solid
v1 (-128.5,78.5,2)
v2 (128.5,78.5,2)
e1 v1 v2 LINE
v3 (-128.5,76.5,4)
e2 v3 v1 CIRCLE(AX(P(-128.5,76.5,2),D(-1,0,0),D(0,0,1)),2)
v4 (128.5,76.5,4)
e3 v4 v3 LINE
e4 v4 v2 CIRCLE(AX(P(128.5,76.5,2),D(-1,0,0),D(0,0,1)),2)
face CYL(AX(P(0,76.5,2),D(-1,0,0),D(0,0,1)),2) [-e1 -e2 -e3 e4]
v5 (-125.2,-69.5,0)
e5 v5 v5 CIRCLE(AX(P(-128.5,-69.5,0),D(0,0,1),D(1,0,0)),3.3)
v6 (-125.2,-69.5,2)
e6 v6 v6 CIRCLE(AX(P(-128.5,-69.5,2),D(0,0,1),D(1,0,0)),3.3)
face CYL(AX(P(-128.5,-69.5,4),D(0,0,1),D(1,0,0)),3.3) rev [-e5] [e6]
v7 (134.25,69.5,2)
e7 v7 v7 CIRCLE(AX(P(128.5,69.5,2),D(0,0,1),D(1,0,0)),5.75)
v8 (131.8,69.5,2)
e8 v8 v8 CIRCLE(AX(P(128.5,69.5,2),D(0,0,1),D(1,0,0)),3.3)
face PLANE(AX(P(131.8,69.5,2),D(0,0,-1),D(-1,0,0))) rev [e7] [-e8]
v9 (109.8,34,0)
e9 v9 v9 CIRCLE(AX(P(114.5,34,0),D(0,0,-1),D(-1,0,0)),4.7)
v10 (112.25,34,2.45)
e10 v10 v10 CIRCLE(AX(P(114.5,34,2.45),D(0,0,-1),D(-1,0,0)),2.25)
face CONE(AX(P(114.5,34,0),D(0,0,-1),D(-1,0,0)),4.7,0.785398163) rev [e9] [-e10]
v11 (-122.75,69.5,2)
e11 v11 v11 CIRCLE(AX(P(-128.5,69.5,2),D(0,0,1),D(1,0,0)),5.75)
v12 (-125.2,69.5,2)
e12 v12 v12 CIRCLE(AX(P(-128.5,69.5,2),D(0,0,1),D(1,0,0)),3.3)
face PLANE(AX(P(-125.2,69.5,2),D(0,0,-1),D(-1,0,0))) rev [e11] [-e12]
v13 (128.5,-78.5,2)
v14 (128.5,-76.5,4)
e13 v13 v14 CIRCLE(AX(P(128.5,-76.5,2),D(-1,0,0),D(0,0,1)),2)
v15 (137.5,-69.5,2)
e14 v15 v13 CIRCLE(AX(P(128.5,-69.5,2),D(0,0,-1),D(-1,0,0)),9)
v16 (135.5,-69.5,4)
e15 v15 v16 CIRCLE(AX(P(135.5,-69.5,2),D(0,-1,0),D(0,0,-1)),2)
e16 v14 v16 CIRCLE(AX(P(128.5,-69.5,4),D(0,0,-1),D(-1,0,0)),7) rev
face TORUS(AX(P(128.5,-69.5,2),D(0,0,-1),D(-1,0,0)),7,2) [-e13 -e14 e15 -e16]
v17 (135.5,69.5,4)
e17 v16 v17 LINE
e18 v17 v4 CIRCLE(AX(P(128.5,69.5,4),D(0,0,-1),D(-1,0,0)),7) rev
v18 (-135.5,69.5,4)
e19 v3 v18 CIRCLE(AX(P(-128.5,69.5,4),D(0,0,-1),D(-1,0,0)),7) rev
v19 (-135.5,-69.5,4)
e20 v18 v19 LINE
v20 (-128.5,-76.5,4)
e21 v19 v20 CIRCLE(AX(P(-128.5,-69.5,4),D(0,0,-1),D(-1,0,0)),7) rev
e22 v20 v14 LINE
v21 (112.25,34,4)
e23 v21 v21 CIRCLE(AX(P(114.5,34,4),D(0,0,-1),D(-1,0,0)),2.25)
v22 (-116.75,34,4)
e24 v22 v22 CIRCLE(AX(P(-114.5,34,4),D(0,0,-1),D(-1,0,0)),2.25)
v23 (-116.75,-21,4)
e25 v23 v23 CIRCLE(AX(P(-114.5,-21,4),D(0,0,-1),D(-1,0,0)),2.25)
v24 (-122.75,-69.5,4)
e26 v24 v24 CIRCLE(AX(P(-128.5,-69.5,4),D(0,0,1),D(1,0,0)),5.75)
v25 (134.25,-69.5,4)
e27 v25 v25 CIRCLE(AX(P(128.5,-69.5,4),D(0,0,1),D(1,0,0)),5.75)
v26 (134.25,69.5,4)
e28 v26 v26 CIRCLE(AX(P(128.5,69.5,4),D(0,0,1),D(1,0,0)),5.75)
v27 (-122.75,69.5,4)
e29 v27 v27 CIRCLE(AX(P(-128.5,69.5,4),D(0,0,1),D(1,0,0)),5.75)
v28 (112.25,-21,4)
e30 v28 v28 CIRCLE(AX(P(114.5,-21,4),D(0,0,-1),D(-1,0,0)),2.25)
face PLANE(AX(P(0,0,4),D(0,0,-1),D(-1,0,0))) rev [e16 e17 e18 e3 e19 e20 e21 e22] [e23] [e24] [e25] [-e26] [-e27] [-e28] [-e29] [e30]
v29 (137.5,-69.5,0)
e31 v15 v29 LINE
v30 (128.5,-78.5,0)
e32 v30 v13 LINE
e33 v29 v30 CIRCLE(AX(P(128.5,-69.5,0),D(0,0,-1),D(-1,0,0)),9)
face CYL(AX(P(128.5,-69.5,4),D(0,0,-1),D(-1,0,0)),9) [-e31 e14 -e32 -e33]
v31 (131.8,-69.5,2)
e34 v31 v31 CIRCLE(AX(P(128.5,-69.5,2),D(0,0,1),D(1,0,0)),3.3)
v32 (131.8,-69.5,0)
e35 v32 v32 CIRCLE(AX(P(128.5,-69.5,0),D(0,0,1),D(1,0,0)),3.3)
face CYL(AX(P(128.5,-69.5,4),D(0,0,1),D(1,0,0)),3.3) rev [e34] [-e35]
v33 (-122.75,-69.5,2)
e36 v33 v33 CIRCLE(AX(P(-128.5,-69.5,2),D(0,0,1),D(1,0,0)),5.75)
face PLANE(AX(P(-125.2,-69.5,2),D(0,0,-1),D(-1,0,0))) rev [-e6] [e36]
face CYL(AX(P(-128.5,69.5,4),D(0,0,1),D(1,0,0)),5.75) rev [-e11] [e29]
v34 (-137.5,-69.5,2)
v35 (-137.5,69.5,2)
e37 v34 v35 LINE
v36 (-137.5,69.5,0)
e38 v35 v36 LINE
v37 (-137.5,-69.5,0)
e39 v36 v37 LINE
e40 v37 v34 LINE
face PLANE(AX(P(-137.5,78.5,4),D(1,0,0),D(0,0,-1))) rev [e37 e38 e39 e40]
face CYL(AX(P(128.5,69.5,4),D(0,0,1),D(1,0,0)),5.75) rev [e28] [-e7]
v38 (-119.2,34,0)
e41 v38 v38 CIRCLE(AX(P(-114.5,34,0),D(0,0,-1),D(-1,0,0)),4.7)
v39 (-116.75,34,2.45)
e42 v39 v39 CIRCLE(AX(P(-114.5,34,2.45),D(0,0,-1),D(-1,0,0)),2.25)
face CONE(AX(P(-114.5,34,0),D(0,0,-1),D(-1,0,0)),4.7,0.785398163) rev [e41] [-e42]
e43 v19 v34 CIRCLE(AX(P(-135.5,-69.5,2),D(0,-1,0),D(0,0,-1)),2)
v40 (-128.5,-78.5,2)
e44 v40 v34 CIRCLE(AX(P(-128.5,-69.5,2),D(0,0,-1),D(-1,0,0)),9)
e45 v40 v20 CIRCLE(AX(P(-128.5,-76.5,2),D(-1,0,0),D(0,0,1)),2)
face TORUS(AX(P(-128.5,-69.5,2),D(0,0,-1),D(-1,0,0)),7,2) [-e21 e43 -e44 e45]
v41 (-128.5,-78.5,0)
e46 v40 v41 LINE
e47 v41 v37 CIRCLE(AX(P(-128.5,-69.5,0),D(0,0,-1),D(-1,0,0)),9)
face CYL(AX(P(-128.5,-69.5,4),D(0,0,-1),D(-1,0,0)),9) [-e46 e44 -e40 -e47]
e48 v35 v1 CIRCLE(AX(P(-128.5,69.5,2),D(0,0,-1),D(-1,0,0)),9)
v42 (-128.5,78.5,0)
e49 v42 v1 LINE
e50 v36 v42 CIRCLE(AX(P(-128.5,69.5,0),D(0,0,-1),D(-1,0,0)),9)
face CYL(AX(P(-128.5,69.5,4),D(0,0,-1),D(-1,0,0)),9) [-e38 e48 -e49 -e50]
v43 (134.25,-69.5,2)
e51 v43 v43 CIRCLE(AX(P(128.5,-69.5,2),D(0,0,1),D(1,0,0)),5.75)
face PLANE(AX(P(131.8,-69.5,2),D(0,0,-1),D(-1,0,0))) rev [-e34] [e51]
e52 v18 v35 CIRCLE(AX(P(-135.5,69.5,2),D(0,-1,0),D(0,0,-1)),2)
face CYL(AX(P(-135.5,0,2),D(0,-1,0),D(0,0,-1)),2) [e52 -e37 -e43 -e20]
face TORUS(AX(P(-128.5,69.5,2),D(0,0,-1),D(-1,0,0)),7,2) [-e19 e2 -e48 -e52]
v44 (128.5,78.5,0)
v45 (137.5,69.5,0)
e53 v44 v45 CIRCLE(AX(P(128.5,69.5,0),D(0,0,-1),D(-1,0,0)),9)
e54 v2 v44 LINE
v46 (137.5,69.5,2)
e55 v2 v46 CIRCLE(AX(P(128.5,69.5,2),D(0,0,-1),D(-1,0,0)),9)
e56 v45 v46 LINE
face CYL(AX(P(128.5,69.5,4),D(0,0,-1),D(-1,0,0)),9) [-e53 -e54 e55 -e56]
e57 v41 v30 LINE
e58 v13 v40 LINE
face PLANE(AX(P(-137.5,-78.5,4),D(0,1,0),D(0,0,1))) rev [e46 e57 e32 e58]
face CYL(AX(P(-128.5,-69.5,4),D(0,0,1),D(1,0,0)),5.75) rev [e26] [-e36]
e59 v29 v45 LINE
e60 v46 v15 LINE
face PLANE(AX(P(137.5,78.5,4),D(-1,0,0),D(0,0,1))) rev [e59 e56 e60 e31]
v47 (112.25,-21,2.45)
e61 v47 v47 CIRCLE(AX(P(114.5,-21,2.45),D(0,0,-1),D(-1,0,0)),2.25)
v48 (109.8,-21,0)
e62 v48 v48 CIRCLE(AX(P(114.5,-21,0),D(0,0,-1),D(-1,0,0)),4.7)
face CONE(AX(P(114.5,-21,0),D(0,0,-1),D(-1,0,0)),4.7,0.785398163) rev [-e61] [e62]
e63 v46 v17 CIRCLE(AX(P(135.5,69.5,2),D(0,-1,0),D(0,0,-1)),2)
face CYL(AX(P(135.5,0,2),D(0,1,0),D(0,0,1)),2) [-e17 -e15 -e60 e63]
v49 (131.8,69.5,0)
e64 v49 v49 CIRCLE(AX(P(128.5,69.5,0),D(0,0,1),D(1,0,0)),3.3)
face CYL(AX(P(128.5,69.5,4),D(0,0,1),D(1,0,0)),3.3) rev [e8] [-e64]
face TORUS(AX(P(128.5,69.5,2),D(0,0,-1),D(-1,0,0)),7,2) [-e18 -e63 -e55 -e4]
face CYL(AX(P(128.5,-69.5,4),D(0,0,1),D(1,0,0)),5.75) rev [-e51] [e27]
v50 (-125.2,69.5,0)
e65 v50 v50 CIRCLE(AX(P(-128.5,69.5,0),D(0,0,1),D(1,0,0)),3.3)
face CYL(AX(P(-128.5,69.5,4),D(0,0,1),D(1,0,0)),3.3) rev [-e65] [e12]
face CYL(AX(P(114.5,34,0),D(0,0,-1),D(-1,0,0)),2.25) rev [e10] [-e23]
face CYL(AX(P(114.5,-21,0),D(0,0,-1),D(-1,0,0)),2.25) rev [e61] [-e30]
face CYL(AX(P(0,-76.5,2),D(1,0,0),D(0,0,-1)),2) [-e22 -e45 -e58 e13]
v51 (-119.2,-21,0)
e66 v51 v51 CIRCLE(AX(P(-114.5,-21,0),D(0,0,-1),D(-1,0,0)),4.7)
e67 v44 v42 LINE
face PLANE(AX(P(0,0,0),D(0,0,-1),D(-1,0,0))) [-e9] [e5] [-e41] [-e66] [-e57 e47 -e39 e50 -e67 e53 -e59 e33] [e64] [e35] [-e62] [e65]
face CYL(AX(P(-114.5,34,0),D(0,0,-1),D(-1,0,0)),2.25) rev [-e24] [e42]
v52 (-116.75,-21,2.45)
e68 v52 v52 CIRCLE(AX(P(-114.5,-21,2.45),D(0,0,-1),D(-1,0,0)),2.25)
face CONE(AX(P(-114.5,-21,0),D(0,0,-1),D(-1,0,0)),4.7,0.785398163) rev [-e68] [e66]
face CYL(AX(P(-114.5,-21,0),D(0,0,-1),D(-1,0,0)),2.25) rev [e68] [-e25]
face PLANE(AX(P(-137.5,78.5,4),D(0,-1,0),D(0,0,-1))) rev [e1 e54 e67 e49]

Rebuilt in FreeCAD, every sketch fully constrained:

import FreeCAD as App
import Part
import Sketcher
Q = App.Units.Quantity


def edges_at(feature, points):
    """Names of the edges that pass closest to the given points."""
    edges = feature.Shape.Edges
    near = lambda p: min(range(len(edges)), key=lambda i: edges[i].distToShape(Part.Vertex(*p))[0])
    return sorted({f"Edge{near(p) + 1}" for p in points})

doc = App.newDocument("Part")
body = doc.addObject("PartDesign::Body", "Body")

sketch1 = body.newObject("Sketcher::SketchObject", "Sketch")
sketch1.AttachmentSupport = (doc.getObject("XY_Plane"), [""])
sketch1.MapMode = "FlatFace"
sketch1.addGeometry([
    Part.LineSegment(App.Vector(-137.5, 78.5, 0), App.Vector(-137.5, -78.5, 0)),
    Part.LineSegment(App.Vector(-137.5, -78.5, 0), App.Vector(137.5, -78.5, 0)),
    Part.LineSegment(App.Vector(137.5, -78.5, 0), App.Vector(137.5, 78.5, 0)),
    Part.LineSegment(App.Vector(137.5, 78.5, 0), App.Vector(-137.5, 78.5, 0)),
], False)
sketch1.addConstraint([
    Sketcher.Constraint("Coincident", 0, 2, 1, 1),
    Sketcher.Constraint("Coincident", 1, 2, 2, 1),
    Sketcher.Constraint("Coincident", 2, 2, 3, 1),
    Sketcher.Constraint("Coincident", 3, 2, 0, 1),
    Sketcher.Constraint("Vertical", 0),
    Sketcher.Constraint("Horizontal", 1),
    Sketcher.Constraint("Vertical", 2),
    Sketcher.Constraint("Horizontal", 3),
    Sketcher.Constraint("Symmetric", 0, 2, 2, 2, -1, 1),
    Sketcher.Constraint("DistanceX", 1, 1, 1, 2, Q("275 mm")),
    Sketcher.Constraint("DistanceY", 0, 2, 0, 1, Q("157 mm")),
])
pad1 = body.newObject("PartDesign::Pad", "Pad")
pad1.Profile = sketch1
pad1.Length = 4

sketch2 = body.newObject("Sketcher::SketchObject", "Sketch001")
sketch2.AttachmentSupport = (doc.getObject("YZ_Plane"), [""])
sketch2.MapMode = "FlatFace"
sketch2.AttachmentOffset = App.Placement(App.Vector(0, 0, -114.5), App.Rotation())
sketch2.addGeometry([
    Part.LineSegment(App.Vector(-21, 4, 0), App.Vector(-21, 0, 0)),
    Part.LineSegment(App.Vector(-21, 0, 0), App.Vector(-16.3, 0, 0)),
    Part.LineSegment(App.Vector(-16.3, 0, 0), App.Vector(-18.75, 2.45, 0)),
    Part.LineSegment(App.Vector(-18.75, 2.45, 0), App.Vector(-18.75, 4, 0)),
    Part.LineSegment(App.Vector(-18.75, 4, 0), App.Vector(-21, 4, 0)),
], False)
sketch2.addGeometry(Part.LineSegment(App.Vector(-21, 0, 0), App.Vector(-21, 4, 0)), True)
sketch2.addConstraint([
    Sketcher.Constraint("Coincident", 0, 2, 1, 1),
    Sketcher.Constraint("Coincident", 1, 2, 2, 1),
    Sketcher.Constraint("Coincident", 2, 2, 3, 1),
    Sketcher.Constraint("Coincident", 3, 2, 4, 1),
    Sketcher.Constraint("Coincident", 4, 2, 0, 1),
    Sketcher.Constraint("Vertical", 0),
    Sketcher.Constraint("Horizontal", 1),
    Sketcher.Constraint("Vertical", 3),
    Sketcher.Constraint("Horizontal", 4),
    Sketcher.Constraint("Vertical", 5),
    Sketcher.Constraint("Coincident", 5, 1, 0, 2),
    Sketcher.Constraint("PointOnObject", 0, 2, -1),
    Sketcher.Constraint("Horizontal", 3, 2, 5, 2),
    Sketcher.Constraint("DistanceY", 0, 2, 0, 1, Q("4 mm")),
    Sketcher.Constraint("Angle", 2, Q("135 deg")),
    Sketcher.Constraint("DistanceX", 1, 1, 1, 2, Q("4.7 mm")),
    Sketcher.Constraint("DistanceX", 0, 2, -1, 1, Q("21 mm")),
    Sketcher.Constraint("DistanceX", 4, 2, 4, 1, Q("2.25 mm")),
])
groove = body.newObject("PartDesign::Groove", "Groove")
groove.Profile = sketch2
groove.ReferenceAxis = (sketch2, ["Axis0"])
groove.Angle = 360
doc.recompute()

datumline = body.newObject("PartDesign::Line", "DatumLine")
datumline.Placement = App.Placement(App.Vector(0, 0, 0), App.Rotation(App.Vector(0, 0, 1), App.Vector(0.972348746, 0.233533542, 0)))
linearpattern = body.newObject("PartDesign::LinearPattern", "LinearPattern")
linearpattern.Originals = [groove]
linearpattern.Direction = (datumline, [""])
linearpattern.Mode = "offset"
linearpattern.Offset = 235.512208
linearpattern.Occurrences = 2
body.Tip = linearpattern
doc.recompute()

linearpattern2 = body.newObject("PartDesign::LinearPattern", "LinearPattern001")
linearpattern2.Originals = [groove]
linearpattern2.Direction = (doc.getObject("X_Axis"), [""])
linearpattern2.Mode = "offset"
linearpattern2.Offset = 229
linearpattern2.Occurrences = 2
body.Tip = linearpattern2
doc.recompute()

linearpattern3 = body.newObject("PartDesign::LinearPattern", "LinearPattern002")
linearpattern3.Originals = [groove]
linearpattern3.Direction = (doc.getObject("Y_Axis"), [""])
linearpattern3.Mode = "offset"
linearpattern3.Offset = 55
linearpattern3.Occurrences = 2
body.Tip = linearpattern3

sketch3 = body.newObject("Sketcher::SketchObject", "Sketch002")
sketch3.AttachmentSupport = (doc.getObject("XY_Plane"), [""])
sketch3.MapMode = "FlatFace"
sketch3.AttachmentOffset = App.Placement(App.Vector(0, 0, 4), App.Rotation())
sketch3.addGeometry([
    Part.Circle(App.Vector(128.5, -69.5, 0), App.Vector(0, 0, 1), 3.3),
    Part.Circle(App.Vector(-128.5, -69.5, 0), App.Vector(0, 0, 1), 3.3),
    Part.Circle(App.Vector(-128.5, 69.5, 0), App.Vector(0, 0, 1), 3.3),
    Part.Circle(App.Vector(128.5, 69.5, 0), App.Vector(0, 0, 1), 3.3),
], False)
sketch3.addConstraint([
    Sketcher.Constraint("Equal", 0, 1),
    Sketcher.Constraint("Equal", 1, 2),
    Sketcher.Constraint("Equal", 2, 3),
    Sketcher.Constraint("Symmetric", 0, 3, 2, 3, -1, 1),
    Sketcher.Constraint("Symmetric", 1, 3, 3, 3, -1, 1),
    Sketcher.Constraint("Symmetric", 0, 3, 1, 3, -2),
    Sketcher.Constraint("Diameter", 0, Q("6.6 mm")),
    Sketcher.Constraint("DistanceX", 1, 3, 0, 3, Q("257 mm")),
    Sketcher.Constraint("DistanceY", 1, 3, 2, 3, Q("139 mm")),
])
doc.recompute()
hole = body.newObject("PartDesign::Hole", "Hole")
hole.Profile = sketch3
hole.ThreadType = "None"
hole.Diameter = 6.6
hole.DepthType = "ThroughAll"
hole.HoleCutType = "Counterbore"
hole.HoleCutDiameter = 11.5
hole.HoleCutDepth = 2
doc.recompute()

fillet = body.newObject("PartDesign::Fillet", "Fillet")
fillet.Base = (hole, edges_at(hole, [
    (137.5, 78.5, 2),
    (137.5, -78.5, 2),
    (-137.5, -78.5, 2),
    (-137.5, 78.5, 2),
]))
fillet.Radius = 9
doc.recompute()

fillet2 = body.newObject("PartDesign::Fillet", "Fillet001")
fillet2.Base = (fillet, edges_at(fillet, [
    (0, 78.5, 4),
    (137.5, 0, 4),
    (-137.5, 0, 4),
    (0, -78.5, 4),
    (-134.864, -75.864, 4),
    (-134.864, 75.864, 4),
    (134.864, -75.864, 4),
    (134.864, 75.864, 4),
]))
fillet2.Radius = 2

doc.recompute()
